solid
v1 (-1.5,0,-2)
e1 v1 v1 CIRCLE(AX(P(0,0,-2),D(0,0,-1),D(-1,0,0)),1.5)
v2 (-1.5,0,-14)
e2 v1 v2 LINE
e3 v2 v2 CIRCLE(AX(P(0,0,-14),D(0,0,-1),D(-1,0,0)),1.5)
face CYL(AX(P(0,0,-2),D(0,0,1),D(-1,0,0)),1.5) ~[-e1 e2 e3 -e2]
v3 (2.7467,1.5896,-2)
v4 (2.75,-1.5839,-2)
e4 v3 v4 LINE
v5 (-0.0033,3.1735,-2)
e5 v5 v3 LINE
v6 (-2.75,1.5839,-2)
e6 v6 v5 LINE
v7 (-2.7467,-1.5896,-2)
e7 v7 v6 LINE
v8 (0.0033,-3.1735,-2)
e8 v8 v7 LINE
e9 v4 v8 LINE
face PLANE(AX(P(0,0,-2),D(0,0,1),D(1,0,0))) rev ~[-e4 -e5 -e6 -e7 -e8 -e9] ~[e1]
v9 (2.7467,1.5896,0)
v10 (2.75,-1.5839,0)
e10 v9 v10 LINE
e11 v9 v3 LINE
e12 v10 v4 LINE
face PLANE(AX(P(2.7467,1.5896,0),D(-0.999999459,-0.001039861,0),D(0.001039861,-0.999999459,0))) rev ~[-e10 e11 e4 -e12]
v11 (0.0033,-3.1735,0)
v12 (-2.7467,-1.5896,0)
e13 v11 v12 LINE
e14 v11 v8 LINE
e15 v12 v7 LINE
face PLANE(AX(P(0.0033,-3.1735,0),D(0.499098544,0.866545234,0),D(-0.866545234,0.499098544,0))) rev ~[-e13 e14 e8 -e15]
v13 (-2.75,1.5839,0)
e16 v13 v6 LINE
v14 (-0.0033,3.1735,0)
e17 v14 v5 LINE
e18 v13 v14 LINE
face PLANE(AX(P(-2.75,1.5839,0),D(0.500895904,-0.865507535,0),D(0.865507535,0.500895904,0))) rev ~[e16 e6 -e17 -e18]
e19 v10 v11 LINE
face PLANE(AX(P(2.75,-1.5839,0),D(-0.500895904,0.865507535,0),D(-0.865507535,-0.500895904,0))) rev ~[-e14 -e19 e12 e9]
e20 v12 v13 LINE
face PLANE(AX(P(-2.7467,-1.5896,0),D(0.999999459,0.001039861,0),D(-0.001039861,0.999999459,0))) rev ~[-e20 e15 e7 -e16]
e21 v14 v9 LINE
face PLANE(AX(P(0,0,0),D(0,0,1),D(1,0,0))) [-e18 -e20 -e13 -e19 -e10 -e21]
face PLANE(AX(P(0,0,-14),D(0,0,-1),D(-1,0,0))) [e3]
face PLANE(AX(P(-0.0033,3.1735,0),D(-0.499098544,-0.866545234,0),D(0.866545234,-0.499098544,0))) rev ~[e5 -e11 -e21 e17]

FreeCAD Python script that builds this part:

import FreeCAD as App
import Part
import Sketcher
from FreeCAD import Vector
Q = App.Units.Quantity

doc = App.newDocument("Part")
params = doc.addObject("Spreadsheet::Sheet", "Params")
for row, (alias, value) in enumerate([
    ("pad1_length", "2 mm"),
    ("sketch2_diameter", "3 mm"),
    ("pad2_length", "12 mm"),
], start=1):
    params.set(f"A{row}", alias)
    params.set(f"B{row}", "=" + value)
    params.setAlias(f"B{row}", alias)

body = doc.addObject("PartDesign::Body", "Body")

# Sketch on XY plane
sketch1 = body.newObject("Sketcher::SketchObject", "Sketch")
sketch1.AttachmentSupport = (doc.getObject("XY_Plane"), [""])
sketch1.MapMode = "FlatFace"
sketch1.addGeometry(Part.LineSegment(Vector(0, 3.2, 0), Vector(-2.8, 1.6, 0)), False)
sketch1.addGeometry(Part.LineSegment(Vector(-2.8, 1.6, 0), Vector(-2.7, -1.6, 0)), False)
sketch1.addGeometry(Part.LineSegment(Vector(-2.7, -1.6, 0), Vector(0, -3.2, 0)), False)
sketch1.addGeometry(Part.LineSegment(Vector(0, -3.2, 0), Vector(2.8, -1.6, 0)), False)
sketch1.addGeometry(Part.LineSegment(Vector(2.8, -1.6, 0), Vector(2.7, 1.6, 0)), False)
sketch1.addGeometry(Part.LineSegment(Vector(2.7, 1.6, 0), Vector(0, 3.2, 0)), False)
sketch1.addConstraint(Sketcher.Constraint("Coincident", 0, 2, 1, 1))
sketch1.addConstraint(Sketcher.Constraint("Coincident", 1, 2, 2, 1))
sketch1.addConstraint(Sketcher.Constraint("Coincident", 2, 2, 3, 1))
sketch1.addConstraint(Sketcher.Constraint("Coincident", 3, 2, 4, 1))
sketch1.addConstraint(Sketcher.Constraint("Coincident", 4, 2, 5, 1))
sketch1.addConstraint(Sketcher.Constraint("Coincident", 5, 2, 0, 1))
sketch1.addConstraint(Sketcher.Constraint("Symmetric", 0, 2, 3, 2, -1, 1))
sketch1.addConstraint(Sketcher.Constraint("Symmetric", 1, 2, 4, 2, -1, 1))
sketch1.addConstraint(Sketcher.Constraint("Symmetric", 2, 2, 5, 2, -1, 1))
sketch1.addConstraint(Sketcher.Constraint("Equal", 0, 1))
sketch1.addConstraint(Sketcher.Constraint("Equal", 1, 2))
sketch1.addConstraint(Sketcher.Constraint("Angle", 0, Q("-149.9407 deg")))
sketch1.addConstraint(Sketcher.Constraint("Angle", 1, Q("-89.9404 deg")))
sketch1.addConstraint(Sketcher.Constraint("Angle", 2, Q("-29.9404 deg")))
sketch1.addConstraint(Sketcher.Constraint("DistanceX", 0, 2, 3, 2, Q("5.5 mm")))
pad1 = body.newObject("PartDesign::Pad", "Pad")
pad1.Profile = sketch1
pad1.setExpression("Length", "Params.pad1_length")
pad1.Reversed = True

# Sketch on XY plane
sketch2 = body.newObject("Sketcher::SketchObject", "Sketch001")
sketch2.AttachmentSupport = (doc.getObject("XY_Plane"), [""])
sketch2.MapMode = "FlatFace"
sketch2.AttachmentOffset = App.Placement(Vector(0, 0, -2), App.Rotation())
sketch2.addGeometry(Part.Circle(Vector(0, 0, 0), Vector(0, 0, 1), 1.5), False)
sketch2.addConstraint(Sketcher.Constraint("Coincident", 0, 3, -1, 1))
sketch2.addConstraint(Sketcher.Constraint("Diameter", 0, Q("3 mm")))
sketch2.setExpression("Constraints[1]", "Params.sketch2_diameter")
pad2 = body.newObject("PartDesign::Pad", "Pad001")
pad2.Profile = sketch2
pad2.setExpression("Length", "Params.pad2_length")
pad2.Reversed = True

doc.recompute()
